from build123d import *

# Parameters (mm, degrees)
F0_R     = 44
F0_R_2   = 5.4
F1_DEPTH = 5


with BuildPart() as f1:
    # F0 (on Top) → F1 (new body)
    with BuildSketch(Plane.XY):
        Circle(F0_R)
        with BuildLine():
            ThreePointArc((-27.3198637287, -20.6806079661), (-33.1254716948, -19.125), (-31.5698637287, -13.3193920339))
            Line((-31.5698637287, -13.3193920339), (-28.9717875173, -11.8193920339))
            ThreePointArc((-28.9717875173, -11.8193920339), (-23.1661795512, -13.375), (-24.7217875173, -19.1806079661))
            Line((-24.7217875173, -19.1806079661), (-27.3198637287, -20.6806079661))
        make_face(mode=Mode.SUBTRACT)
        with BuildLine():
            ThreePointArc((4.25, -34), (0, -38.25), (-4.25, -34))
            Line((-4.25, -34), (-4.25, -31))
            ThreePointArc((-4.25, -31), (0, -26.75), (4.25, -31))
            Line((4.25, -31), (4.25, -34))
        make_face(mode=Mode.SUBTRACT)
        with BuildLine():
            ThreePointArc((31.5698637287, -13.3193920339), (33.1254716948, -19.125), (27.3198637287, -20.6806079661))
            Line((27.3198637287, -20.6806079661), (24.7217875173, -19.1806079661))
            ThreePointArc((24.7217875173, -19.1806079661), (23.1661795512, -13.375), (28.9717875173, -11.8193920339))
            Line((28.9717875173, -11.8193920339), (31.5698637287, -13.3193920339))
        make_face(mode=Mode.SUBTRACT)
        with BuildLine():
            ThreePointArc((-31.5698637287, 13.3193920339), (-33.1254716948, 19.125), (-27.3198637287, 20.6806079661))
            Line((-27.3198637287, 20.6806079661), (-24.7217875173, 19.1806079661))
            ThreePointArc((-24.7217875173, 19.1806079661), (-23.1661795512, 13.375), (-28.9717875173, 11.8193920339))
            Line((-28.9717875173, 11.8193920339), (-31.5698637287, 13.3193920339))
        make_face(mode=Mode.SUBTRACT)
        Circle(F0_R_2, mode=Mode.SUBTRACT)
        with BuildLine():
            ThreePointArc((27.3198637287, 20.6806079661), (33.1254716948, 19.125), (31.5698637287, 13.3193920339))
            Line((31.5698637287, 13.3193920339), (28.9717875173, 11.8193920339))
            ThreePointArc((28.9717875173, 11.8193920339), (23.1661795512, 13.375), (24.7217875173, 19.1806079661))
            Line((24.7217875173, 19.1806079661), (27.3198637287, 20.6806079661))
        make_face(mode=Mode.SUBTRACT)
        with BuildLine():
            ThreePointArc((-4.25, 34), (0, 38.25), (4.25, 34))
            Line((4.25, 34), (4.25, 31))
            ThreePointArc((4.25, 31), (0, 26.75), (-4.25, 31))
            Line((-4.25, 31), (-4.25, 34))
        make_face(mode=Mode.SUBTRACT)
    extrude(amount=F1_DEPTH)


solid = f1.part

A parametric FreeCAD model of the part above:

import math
import FreeCAD as App
import Part
import Sketcher

V = App.Vector
Q = App.Units.Quantity

doc = App.newDocument("Part")
params = doc.addObject("Spreadsheet::Sheet", "Params")
for row, (alias, value) in enumerate([
    ("sketch1_diameter", "88 mm"),
    ("sketch1_diameter2", "10.8 mm"),
    ("sketch1_height", "3 mm"),
    ("sketch1_radius", "4.25 mm"),
    ("sketch1_length", "3 mm"),
    ("pad1_length", "5 mm"),
], start=1):
    params.set(f"A{row}", alias)
    params.set(f"B{row}", "=" + value)
    params.setAlias(f"B{row}", alias)

body = doc.addObject("PartDesign::Body", "Body")

# Sketch on XY plane
sketch1 = body.newObject("Sketcher::SketchObject", "Sketch")
sketch1.AttachmentSupport = (doc.getObject("XY_Plane"), [""])
sketch1.MapMode = "FlatFace"
sketch1.addGeometry([
    Part.Circle(V(0, 0, 0), V(0, 0, 1), 44),  # 0
    Part.LineSegment(V(-24.7, -19.2, 0), V(-27.3, -20.7, 0)),  # 1
    Part.ArcOfCircle(Part.Circle(V(-29.4, -17, 0), V(0, 0, 1), 4.2), math.radians(120), math.radians(300)),  # 2
    Part.LineSegment(V(-31.6, -13.3, 0), V(-29, -11.8, 0)),  # 3
    Part.ArcOfCircle(Part.Circle(V(-26.8, -15.5, 0), V(0, 0, 1), 4.2), math.radians(-60), math.radians(120)),  # 4
    Part.LineSegment(V(4.2, -31, 0), V(4.2, -34, 0)),  # 5
    Part.ArcOfCircle(Part.Circle(V(0, -34, 0), V(0, 0, 1), 4.2), math.radians(180), math.radians(360)),  # 6
    Part.LineSegment(V(-4.2, -34, 0), V(-4.2, -31, 0)),  # 7
    Part.ArcOfCircle(Part.Circle(V(0, -31, 0), V(0, 0, 1), 4.2), math.radians(0), math.radians(180)),  # 8
    Part.LineSegment(V(29, -11.8, 0), V(31.6, -13.3, 0)),  # 9
    Part.ArcOfCircle(Part.Circle(V(29.4, -17, 0), V(0, 0, 1), 4.2), math.radians(-120), math.radians(60)),  # 10
    Part.LineSegment(V(27.3, -20.7, 0), V(24.7, -19.2, 0)),  # 11
    Part.ArcOfCircle(Part.Circle(V(26.8, -15.5, 0), V(0, 0, 1), 4.2), math.radians(60), math.radians(240)),  # 12
    Part.LineSegment(V(-29, 11.8, 0), V(-31.6, 13.3, 0)),  # 13
    Part.ArcOfCircle(Part.Circle(V(-29.4, 17, 0), V(0, 0, 1), 4.2), math.radians(60), math.radians(240)),  # 14
    Part.LineSegment(V(-27.3, 20.7, 0), V(-24.7, 19.2, 0)),  # 15
    Part.ArcOfCircle(Part.Circle(V(-26.8, 15.5, 0), V(0, 0, 1), 4.2), math.radians(-120), math.radians(60)),  # 16
    Part.Circle(V(0, 0, 0), V(0, 0, 1), 5.4),  # 17
    Part.LineSegment(V(24.7, 19.2, 0), V(27.3, 20.7, 0)),  # 18
    Part.ArcOfCircle(Part.Circle(V(29.4, 17, 0), V(0, 0, 1), 4.2), math.radians(-60), math.radians(120)),  # 19
    Part.LineSegment(V(31.6, 13.3, 0), V(29, 11.8, 0)),  # 20
    Part.ArcOfCircle(Part.Circle(V(26.8, 15.5, 0), V(0, 0, 1), 4.2), math.radians(120), math.radians(300)),  # 21
    Part.LineSegment(V(-4.2, 31, 0), V(-4.2, 34, 0)),  # 22
    Part.ArcOfCircle(Part.Circle(V(0, 34, 0), V(0, 0, 1), 4.2), math.radians(0), math.radians(180)),  # 23
    Part.LineSegment(V(4.2, 34, 0), V(4.2, 31, 0)),  # 24
    Part.ArcOfCircle(Part.Circle(V(0, 31, 0), V(0, 0, 1), 4.2), math.radians(180), math.radians(360)),  # 25
], False)
sketch1.addConstraint([
    Sketcher.Constraint("Tangent", 1, 2, 2, 2),
    Sketcher.Constraint("Tangent", 2, 1, 3, 1),
    Sketcher.Constraint("Tangent", 3, 2, 4, 2),
    Sketcher.Constraint("Tangent", 4, 1, 1, 1),
    Sketcher.Constraint("Tangent", 5, 2, 6, 2),
    Sketcher.Constraint("Tangent", 6, 1, 7, 1),
    Sketcher.Constraint("Tangent", 7, 2, 8, 2),
    Sketcher.Constraint("Tangent", 8, 1, 5, 1),
    Sketcher.Constraint("Tangent", 9, 2, 10, 2),
    Sketcher.Constraint("Tangent", 10, 1, 11, 1),
    Sketcher.Constraint("Tangent", 11, 2, 12, 2),
    Sketcher.Constraint("Tangent", 12, 1, 9, 1),
    Sketcher.Constraint("Tangent", 13, 2, 14, 2),
    Sketcher.Constraint("Tangent", 14, 1, 15, 1),
    Sketcher.Constraint("Tangent", 15, 2, 16, 2),
    Sketcher.Constraint("Tangent", 16, 1, 13, 1),
    Sketcher.Constraint("Tangent", 18, 2, 19, 2),
    Sketcher.Constraint("Tangent", 19, 1, 20, 1),
    Sketcher.Constraint("Tangent", 20, 2, 21, 2),
    Sketcher.Constraint("Tangent", 21, 1, 18, 1),
    Sketcher.Constraint("Tangent", 22, 2, 23, 2),
    Sketcher.Constraint("Tangent", 23, 1, 24, 1),
    Sketcher.Constraint("Tangent", 24, 2, 25, 2),
    Sketcher.Constraint("Tangent", 25, 1, 22, 1),
    Sketcher.Constraint("Vertical", 5),
    Sketcher.Constraint("Vertical", 7),
    Sketcher.Constraint("Vertical", 22),
    Sketcher.Constraint("Vertical", 24),
    Sketcher.Constraint("Coincident", 0, 3, -1, 1),
    Sketcher.Constraint("Coincident", 17, 3, -1, 1),
    Sketcher.Constraint("Equal", 2, 4),
    Sketcher.Constraint("Equal", 4, 6),
    Sketcher.Constraint("Equal", 8, 10),
    Sketcher.Constraint("Equal", 10, 12),
    Sketcher.Constraint("Equal", 12, 14),
    Sketcher.Constraint("Equal", 14, 16),
    Sketcher.Constraint("Equal", 16, 19),
    Sketcher.Constraint("Equal", 19, 21),
    Sketcher.Constraint("Equal", 21, 23),
    Sketcher.Constraint("Symmetric", 10, 3, 14, 3, -1, 1),
    Sketcher.Constraint("Symmetric", 12, 3, 16, 3, -1, 1),
    Sketcher.Constraint("Symmetric", 2, 3, 19, 3, -1, 1),
    Sketcher.Constraint("Symmetric", 4, 3, 21, 3, -1, 1),
    Sketcher.Constraint("Symmetric", 6, 3, 23, 3, -1, 1),
    Sketcher.Constraint("Symmetric", 2, 3, 10, 3, -2),
    Sketcher.Constraint("Symmetric", 4, 3, 12, 3, -2),
    Sketcher.Constraint("Symmetric", 8, 3, 25, 3, -1),
    Sketcher.Constraint("Diameter", 0, Q("88 mm")),
    Sketcher.Constraint("Diameter", 17, Q("10.8 mm")),
    Sketcher.Constraint("DistanceY", 5, 2, 5, 1, Q("3 mm")),
    Sketcher.Constraint("Angle", 1, Q("-150 deg")),
    Sketcher.Constraint("Radius", 2, Q("4.25 mm")),
    Sketcher.Constraint("Distance", 1, Q("3 mm")),
    Sketcher.Constraint("DistanceY", 2, 3, -1, 1, Q("17 mm")),
    Sketcher.Constraint("DistanceY", 6, 3, -1, 1, Q("34 mm")),
    Sketcher.Constraint("DistanceX", 4, 3, 10, 3, Q("56.291651 mm")),
])
sketch1.setExpression("Constraints[47]", "Params.sketch1_diameter")
sketch1.setExpression("Constraints[48]", "Params.sketch1_diameter2")
sketch1.setExpression("Constraints[49]", "Params.sketch1_height")
sketch1.setExpression("Constraints[51]", "Params.sketch1_radius")
sketch1.setExpression("Constraints[52]", "Params.sketch1_length")
pad1 = body.newObject("PartDesign::Pad", "Pad")
pad1.Profile = sketch1
pad1.setExpression("Length", "Params.pad1_length")

doc.recompute()
